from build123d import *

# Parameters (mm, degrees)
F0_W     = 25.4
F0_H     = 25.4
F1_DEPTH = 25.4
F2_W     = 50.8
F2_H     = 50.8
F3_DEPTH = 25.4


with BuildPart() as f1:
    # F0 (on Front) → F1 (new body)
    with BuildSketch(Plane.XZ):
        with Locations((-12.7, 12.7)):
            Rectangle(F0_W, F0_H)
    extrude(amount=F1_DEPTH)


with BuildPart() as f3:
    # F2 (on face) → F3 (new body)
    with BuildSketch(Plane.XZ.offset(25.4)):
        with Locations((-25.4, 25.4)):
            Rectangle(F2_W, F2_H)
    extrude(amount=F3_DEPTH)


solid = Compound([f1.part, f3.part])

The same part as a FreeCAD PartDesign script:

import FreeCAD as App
import Part
import Sketcher

V = App.Vector
Q = App.Units.Quantity

doc = App.newDocument("Part")
body = doc.addObject("PartDesign::Body", "Body")

# Sketch on XZ plane
sketch1 = body.newObject("Sketcher::SketchObject", "Sketch")
sketch1.AttachmentSupport = (doc.getObject("XZ_Plane"), [""])
sketch1.MapMode = "FlatFace"
sketch1.addGeometry([
    Part.LineSegment(V(-25.4, 25.4, 0), V(-25.4, 0, 0)),
    Part.LineSegment(V(-25.4, 0, 0), V(0, 0, 0)),
    Part.LineSegment(V(0, 0, 0), V(0, 25.4, 0)),
    Part.LineSegment(V(0, 25.4, 0), V(-25.4, 25.4, 0)),
], False)
sketch1.addConstraint([
    Sketcher.Constraint("Coincident", 0, 2, 1, 1),
    Sketcher.Constraint("Coincident", 1, 2, 2, 1),
    Sketcher.Constraint("Coincident", 2, 2, 3, 1),
    Sketcher.Constraint("Coincident", 3, 2, 0, 1),
    Sketcher.Constraint("Vertical", 0),
    Sketcher.Constraint("Horizontal", 1),
    Sketcher.Constraint("Vertical", 2),
    Sketcher.Constraint("Horizontal", 3),
    Sketcher.Constraint("Coincident", 1, 2, -1, 1),
    Sketcher.Constraint("Equal", 3, 0),
    Sketcher.Constraint("DistanceX", 1, 1, 1, 2, Q("1 in")),
])
pad1 = body.newObject("PartDesign::Pad", "Pad")
pad1.Profile = sketch1
pad1.Length = Q("1 in")
body2 = doc.addObject("PartDesign::Body", "Body001")

# Sketch on XZ plane
sketch2 = body2.newObject("Sketcher::SketchObject", "Sketch001")
sketch2.AttachmentSupport = (doc.getObject("XZ_Plane001"), [""])
sketch2.MapMode = "FlatFace"
sketch2.AttachmentOffset = App.Placement(V(0, 0, 1 * 25.4), App.Rotation())
sketch2.addGeometry([
    Part.LineSegment(V(-50.8, 50.8, 0), V(-50.8, 0, 0)),
    Part.LineSegment(V(-50.8, 0, 0), V(0, 0, 0)),
    Part.LineSegment(V(0, 0, 0), V(0, 50.8, 0)),
    Part.LineSegment(V(0, 50.8, 0), V(-50.8, 50.8, 0)),
], False)
sketch2.addConstraint([
    Sketcher.Constraint("Coincident", 0, 2, 1, 1),
    Sketcher.Constraint("Coincident", 1, 2, 2, 1),
    Sketcher.Constraint("Coincident", 2, 2, 3, 1),
    Sketcher.Constraint("Coincident", 3, 2, 0, 1),
    Sketcher.Constraint("Vertical", 0),
    Sketcher.Constraint("Horizontal", 1),
    Sketcher.Constraint("Vertical", 2),
    Sketcher.Constraint("Horizontal", 3),
    Sketcher.Constraint("Coincident", 1, 2, -1, 1),
    Sketcher.Constraint("Equal", 3, 0),
    Sketcher.Constraint("DistanceX", 1, 1, 1, 2, Q("2 in")),
])
pad2 = body2.newObject("PartDesign::Pad", "Pad001")
pad2.Profile = sketch2
pad2.Length = Q("1 in")

doc.recompute()
